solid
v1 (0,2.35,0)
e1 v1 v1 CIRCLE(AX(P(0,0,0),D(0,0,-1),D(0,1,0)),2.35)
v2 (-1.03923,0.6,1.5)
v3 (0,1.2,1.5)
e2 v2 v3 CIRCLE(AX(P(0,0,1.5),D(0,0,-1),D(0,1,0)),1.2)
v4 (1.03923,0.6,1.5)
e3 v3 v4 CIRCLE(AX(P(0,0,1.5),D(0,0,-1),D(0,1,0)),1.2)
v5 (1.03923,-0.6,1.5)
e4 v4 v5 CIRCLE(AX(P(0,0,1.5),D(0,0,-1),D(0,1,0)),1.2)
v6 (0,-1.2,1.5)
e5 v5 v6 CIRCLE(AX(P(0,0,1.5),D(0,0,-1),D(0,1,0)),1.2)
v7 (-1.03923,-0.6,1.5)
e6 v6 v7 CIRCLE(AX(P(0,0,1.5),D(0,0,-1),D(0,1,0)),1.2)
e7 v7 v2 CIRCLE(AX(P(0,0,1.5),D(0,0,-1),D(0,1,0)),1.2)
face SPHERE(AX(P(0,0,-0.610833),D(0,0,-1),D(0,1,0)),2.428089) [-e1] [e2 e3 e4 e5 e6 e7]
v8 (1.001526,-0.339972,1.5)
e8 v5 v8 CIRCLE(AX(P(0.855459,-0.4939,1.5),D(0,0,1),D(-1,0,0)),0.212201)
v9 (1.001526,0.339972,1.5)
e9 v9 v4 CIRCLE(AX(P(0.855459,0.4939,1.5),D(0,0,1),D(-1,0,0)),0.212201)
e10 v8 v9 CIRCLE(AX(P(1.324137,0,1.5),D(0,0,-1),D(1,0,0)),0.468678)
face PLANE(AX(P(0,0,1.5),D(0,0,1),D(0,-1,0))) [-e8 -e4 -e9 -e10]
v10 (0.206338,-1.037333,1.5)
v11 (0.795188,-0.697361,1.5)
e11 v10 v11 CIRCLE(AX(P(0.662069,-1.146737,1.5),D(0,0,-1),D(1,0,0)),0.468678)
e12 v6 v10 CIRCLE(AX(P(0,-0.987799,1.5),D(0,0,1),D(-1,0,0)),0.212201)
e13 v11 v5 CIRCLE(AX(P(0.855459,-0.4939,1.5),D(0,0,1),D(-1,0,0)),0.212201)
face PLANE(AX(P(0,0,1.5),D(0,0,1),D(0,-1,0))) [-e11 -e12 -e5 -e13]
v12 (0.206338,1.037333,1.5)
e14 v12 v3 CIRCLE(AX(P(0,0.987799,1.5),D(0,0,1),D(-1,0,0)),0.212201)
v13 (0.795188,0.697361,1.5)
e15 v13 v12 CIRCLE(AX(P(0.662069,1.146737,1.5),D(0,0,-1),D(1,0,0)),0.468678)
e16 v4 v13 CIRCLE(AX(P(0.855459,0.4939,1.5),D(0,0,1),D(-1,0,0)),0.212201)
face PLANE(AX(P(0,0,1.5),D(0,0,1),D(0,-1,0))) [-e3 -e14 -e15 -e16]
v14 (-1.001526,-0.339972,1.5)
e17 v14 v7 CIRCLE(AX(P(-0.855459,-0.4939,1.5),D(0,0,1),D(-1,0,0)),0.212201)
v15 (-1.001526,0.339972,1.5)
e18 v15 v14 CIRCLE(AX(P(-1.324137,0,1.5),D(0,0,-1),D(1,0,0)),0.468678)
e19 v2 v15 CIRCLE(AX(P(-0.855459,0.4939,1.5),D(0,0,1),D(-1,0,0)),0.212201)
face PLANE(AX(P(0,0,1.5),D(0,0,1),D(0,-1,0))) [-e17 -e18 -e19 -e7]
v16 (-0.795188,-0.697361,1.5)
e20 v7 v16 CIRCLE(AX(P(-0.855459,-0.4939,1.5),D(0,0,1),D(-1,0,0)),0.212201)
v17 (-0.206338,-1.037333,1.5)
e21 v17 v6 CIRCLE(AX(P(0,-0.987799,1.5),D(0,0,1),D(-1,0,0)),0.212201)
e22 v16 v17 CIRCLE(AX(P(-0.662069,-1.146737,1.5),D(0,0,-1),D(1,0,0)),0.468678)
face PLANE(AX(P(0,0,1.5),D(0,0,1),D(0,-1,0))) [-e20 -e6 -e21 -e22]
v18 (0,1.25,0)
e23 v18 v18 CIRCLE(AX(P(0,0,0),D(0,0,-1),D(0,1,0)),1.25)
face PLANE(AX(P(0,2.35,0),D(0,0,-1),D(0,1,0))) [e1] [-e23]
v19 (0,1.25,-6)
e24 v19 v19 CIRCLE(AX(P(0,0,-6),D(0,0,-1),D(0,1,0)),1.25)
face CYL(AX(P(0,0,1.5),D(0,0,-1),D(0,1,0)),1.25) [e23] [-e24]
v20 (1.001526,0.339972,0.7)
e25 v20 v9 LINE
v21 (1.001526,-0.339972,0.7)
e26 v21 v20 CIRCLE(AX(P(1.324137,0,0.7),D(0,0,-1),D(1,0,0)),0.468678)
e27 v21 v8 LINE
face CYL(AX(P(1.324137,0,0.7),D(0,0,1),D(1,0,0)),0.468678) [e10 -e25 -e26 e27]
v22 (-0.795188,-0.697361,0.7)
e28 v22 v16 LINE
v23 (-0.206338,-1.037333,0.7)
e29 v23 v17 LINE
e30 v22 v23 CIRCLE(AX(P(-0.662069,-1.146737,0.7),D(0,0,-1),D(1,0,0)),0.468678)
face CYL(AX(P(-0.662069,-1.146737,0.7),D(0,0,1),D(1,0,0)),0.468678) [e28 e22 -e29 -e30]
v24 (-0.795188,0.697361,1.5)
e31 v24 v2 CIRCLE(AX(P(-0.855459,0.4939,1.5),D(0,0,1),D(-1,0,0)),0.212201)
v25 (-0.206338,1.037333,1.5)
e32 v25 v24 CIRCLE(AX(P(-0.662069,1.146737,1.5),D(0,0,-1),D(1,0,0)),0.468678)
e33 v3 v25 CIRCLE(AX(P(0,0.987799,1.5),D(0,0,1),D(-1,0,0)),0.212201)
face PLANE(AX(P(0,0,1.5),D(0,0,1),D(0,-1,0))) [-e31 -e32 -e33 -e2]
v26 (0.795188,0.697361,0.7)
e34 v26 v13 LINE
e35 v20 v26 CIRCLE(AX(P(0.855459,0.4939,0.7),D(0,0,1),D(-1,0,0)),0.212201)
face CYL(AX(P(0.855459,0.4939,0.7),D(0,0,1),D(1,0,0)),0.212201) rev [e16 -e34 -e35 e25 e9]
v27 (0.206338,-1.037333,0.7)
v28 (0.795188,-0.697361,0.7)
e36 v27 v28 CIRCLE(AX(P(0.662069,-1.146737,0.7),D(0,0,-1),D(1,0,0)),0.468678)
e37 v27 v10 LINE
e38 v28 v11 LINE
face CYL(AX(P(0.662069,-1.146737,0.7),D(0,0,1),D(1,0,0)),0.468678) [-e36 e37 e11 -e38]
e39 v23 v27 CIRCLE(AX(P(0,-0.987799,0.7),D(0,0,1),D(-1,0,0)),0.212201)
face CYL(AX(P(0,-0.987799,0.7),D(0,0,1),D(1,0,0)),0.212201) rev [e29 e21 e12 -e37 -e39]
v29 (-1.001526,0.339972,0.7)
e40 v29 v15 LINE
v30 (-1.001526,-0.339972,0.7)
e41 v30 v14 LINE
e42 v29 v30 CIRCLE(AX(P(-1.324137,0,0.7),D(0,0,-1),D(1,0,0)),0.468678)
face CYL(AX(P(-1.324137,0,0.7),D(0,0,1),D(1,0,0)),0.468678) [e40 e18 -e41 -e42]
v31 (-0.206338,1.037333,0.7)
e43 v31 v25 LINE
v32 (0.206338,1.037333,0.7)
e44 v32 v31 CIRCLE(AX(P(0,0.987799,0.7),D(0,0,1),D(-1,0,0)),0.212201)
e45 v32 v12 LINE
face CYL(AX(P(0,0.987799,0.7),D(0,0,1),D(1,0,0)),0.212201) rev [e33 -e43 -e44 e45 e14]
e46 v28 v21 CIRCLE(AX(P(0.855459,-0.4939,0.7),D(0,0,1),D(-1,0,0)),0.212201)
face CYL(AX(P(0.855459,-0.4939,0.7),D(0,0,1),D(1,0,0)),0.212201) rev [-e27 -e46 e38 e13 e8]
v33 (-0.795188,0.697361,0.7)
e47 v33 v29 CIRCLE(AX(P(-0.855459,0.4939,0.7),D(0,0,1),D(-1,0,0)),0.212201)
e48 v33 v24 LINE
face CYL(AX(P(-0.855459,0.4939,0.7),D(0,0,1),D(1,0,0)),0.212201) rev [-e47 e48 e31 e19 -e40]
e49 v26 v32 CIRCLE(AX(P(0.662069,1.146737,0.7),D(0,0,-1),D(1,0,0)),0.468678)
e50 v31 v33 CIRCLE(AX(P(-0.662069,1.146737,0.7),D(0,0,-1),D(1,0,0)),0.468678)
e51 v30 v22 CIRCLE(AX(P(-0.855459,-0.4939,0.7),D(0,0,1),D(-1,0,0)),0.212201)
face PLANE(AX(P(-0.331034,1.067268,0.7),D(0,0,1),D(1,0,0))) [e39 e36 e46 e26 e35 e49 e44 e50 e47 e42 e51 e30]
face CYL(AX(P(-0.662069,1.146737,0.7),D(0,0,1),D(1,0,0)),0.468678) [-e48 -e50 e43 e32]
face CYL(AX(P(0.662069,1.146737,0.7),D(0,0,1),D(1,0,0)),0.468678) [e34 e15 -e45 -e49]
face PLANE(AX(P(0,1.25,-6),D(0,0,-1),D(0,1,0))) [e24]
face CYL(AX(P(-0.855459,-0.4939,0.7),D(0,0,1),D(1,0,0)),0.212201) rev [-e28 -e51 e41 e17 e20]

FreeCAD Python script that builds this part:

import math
import FreeCAD as App
import Part
import Sketcher
from FreeCAD import Vector

doc = App.newDocument("Part")
params = doc.addObject("Spreadsheet::Sheet", "Params")
for row, (alias, value) in enumerate([
    ("sketch1_height", "6 mm"),
    ("sketch1_width", "1.2 mm"),
    ("sketch1_width2", "1.1 mm"),
    ("sketch1_height2", "7.5 mm"),
    ("sketch1_width3", "1.25 mm"),
    ("revolution_angle", "360 deg"),
    ("pocket1_length", "0.8 mm"),
], start=1):
    params.set(f"A{row}", alias)
    params.set(f"B{row}", "=" + value)
    params.setAlias(f"B{row}", alias)

body = doc.addObject("PartDesign::Body", "Body")

sketch1 = body.newObject("Sketcher::SketchObject", "Sketch")
sketch1.AttachmentSupport = (doc.getObject("YZ_Plane"), [""])
sketch1.MapMode = "FlatFace"
sketch1.addGeometry(Part.LineSegment(Vector(1.2, 1.5, 0), Vector(0, 1.5, 0)), False)
sketch1.addGeometry(Part.LineSegment(Vector(0, 1.5, 0), Vector(0, -6, 0)), False)
sketch1.addGeometry(Part.LineSegment(Vector(0, -6, 0), Vector(1.25, -6, 0)), False)
sketch1.addGeometry(Part.LineSegment(Vector(1.25, -6, 0), Vector(1.25, 0, 0)), False)
sketch1.addGeometry(Part.LineSegment(Vector(1.25, 0, 0), Vector(2.35, 0, 0)), False)
sketch1.addGeometry(Part.ArcOfCircle(Part.Circle(Vector(0, -0.610833, 0), Vector(0, 0, 1), 2.428089), math.radians(14.57041), math.radians(60.381949)), False)
sketch1.addConstraint(Sketcher.Constraint("Coincident", 0, 2, 1, 1))
sketch1.addConstraint(Sketcher.Constraint("Coincident", 1, 2, 2, 1))
sketch1.addConstraint(Sketcher.Constraint("Coincident", 2, 2, 3, 1))
sketch1.addConstraint(Sketcher.Constraint("Coincident", 3, 2, 4, 1))
sketch1.addConstraint(Sketcher.Constraint("Coincident", 4, 2, 5, 1))
sketch1.addConstraint(Sketcher.Constraint("Coincident", 5, 2, 0, 1))
sketch1.addConstraint(Sketcher.Constraint("Horizontal", 0))
sketch1.addConstraint(Sketcher.Constraint("Vertical", 1))
sketch1.addConstraint(Sketcher.Constraint("Horizontal", 2))
sketch1.addConstraint(Sketcher.Constraint("Vertical", 3))
sketch1.addConstraint(Sketcher.Constraint("Horizontal", 4))
sketch1.addConstraint(Sketcher.Constraint("PointOnObject", 5, 3, -2))
sketch1.addConstraint(Sketcher.Constraint("PointOnObject", 0, 2, -2))
sketch1.addConstraint(Sketcher.Constraint("PointOnObject", 3, 2, -1))
sketch1.addConstraint(Sketcher.Constraint("DistanceY", 3, 1, 3, 2, 6.0))
sketch1.addConstraint(Sketcher.Constraint("DistanceX", 0, 2, 0, 1, 1.2))
sketch1.addConstraint(Sketcher.Constraint("DistanceX", 4, 1, 4, 2, 1.1))
sketch1.addConstraint(Sketcher.Constraint("DistanceY", 1, 2, 1, 1, 7.5))
sketch1.addConstraint(Sketcher.Constraint("DistanceX", 2, 1, 2, 2, 1.25))
sketch1.setExpression("Constraints[14]", "Params.sketch1_height")
sketch1.setExpression("Constraints[15]", "Params.sketch1_width")
sketch1.setExpression("Constraints[16]", "Params.sketch1_width2")
sketch1.setExpression("Constraints[17]", "Params.sketch1_height2")
sketch1.setExpression("Constraints[18]", "Params.sketch1_width3")
revolution = body.newObject("PartDesign::Revolution", "Revolution")
revolution.Profile = sketch1
revolution.ReferenceAxis = (sketch1, ["V_Axis"])
revolution.setExpression("Angle", "Params.revolution_angle")

sketch2 = body.newObject("Sketcher::SketchObject", "Sketch001")
sketch2.AttachmentSupport = (doc.getObject("XY_Plane"), [""])
sketch2.MapMode = "FlatFace"
sketch2.AttachmentOffset = App.Placement(Vector(0, 0, 1.5), App.Rotation())
sketch2.addGeometry(Part.ArcOfCircle(Part.Circle(Vector(0, 0.987799, 0), Vector(0, 0, 1), 0.212201), math.radians(13.499078), math.radians(166.500922)), False)
sketch2.addGeometry(Part.ArcOfCircle(Part.Circle(Vector(-0.662069, 1.146737, 0), Vector(0, 0, 1), 0.468678), math.radians(-106.500921), math.radians(-13.499079)), False)
sketch2.addGeometry(Part.ArcOfCircle(Part.Circle(Vector(-0.855459, 0.4939, 0), Vector(0, 0, 1), 0.212201), math.radians(73.499078), math.radians(226.500922)), False)
sketch2.addGeometry(Part.ArcOfCircle(Part.Circle(Vector(-1.324137, 0, 0), Vector(0, 0, 1), 0.468678), math.radians(-46.500922), math.radians(46.500922)), False)
sketch2.addGeometry(Part.ArcOfCircle(Part.Circle(Vector(-0.855459, -0.4939, 0), Vector(0, 0, 1), 0.212201), math.radians(133.499078), math.radians(286.500922)), False)
sketch2.addGeometry(Part.ArcOfCircle(Part.Circle(Vector(-0.662069, -1.146737, 0), Vector(0, 0, 1), 0.468678), math.radians(13.499079), math.radians(106.500921)), False)
sketch2.addGeometry(Part.ArcOfCircle(Part.Circle(Vector(0, -0.987799, 0), Vector(0, 0, 1), 0.212201), math.radians(-166.500922), math.radians(-13.499078)), False)
sketch2.addGeometry(Part.ArcOfCircle(Part.Circle(Vector(0.662069, -1.146737, 0), Vector(0, 0, 1), 0.468678), math.radians(73.499079), math.radians(166.500921)), False)
sketch2.addGeometry(Part.ArcOfCircle(Part.Circle(Vector(0.855459, -0.4939, 0), Vector(0, 0, 1), 0.212201), math.radians(-106.500922), math.radians(46.500922)), False)
sketch2.addGeometry(Part.ArcOfCircle(Part.Circle(Vector(1.324137, 0, 0), Vector(0, 0, 1), 0.468678), math.radians(133.499078), math.radians(226.500922)), False)
sketch2.addGeometry(Part.ArcOfCircle(Part.Circle(Vector(0.855459, 0.4939, 0), Vector(0, 0, 1), 0.212201), math.radians(-46.500922), math.radians(106.500922)), False)
sketch2.addGeometry(Part.ArcOfCircle(Part.Circle(Vector(0.662069, 1.146737, 0), Vector(0, 0, 1), 0.468678), math.radians(-166.500921), math.radians(-73.499079)), False)
sketch2.addConstraint(Sketcher.Constraint("Tangent", 0, 2, 1, 2))
sketch2.addConstraint(Sketcher.Constraint("Tangent", 1, 1, 2, 1))
sketch2.addConstraint(Sketcher.Constraint("Tangent", 2, 2, 3, 2))
sketch2.addConstraint(Sketcher.Constraint("Tangent", 3, 1, 4, 1))
sketch2.addConstraint(Sketcher.Constraint("Tangent", 4, 2, 5, 2))
sketch2.addConstraint(Sketcher.Constraint("Tangent", 5, 1, 6, 1))
sketch2.addConstraint(Sketcher.Constraint("Tangent", 6, 2, 7, 2))
sketch2.addConstraint(Sketcher.Constraint("Tangent", 7, 1, 8, 1))
sketch2.addConstraint(Sketcher.Constraint("Tangent", 8, 2, 9, 2))
sketch2.addConstraint(Sketcher.Constraint("Tangent", 9, 1, 10, 1))
sketch2.addConstraint(Sketcher.Constraint("Tangent", 10, 2, 11, 2))
sketch2.addConstraint(Sketcher.Constraint("Tangent", 11, 1, 0, 1))
sketch2.addConstraint(Sketcher.Constraint("Equal", 0, 2))
sketch2.addConstraint(Sketcher.Constraint("Equal", 1, 3))
sketch2.addConstraint(Sketcher.Constraint("Equal", 2, 4))
sketch2.addConstraint(Sketcher.Constraint("Equal", 3, 5))
sketch2.addConstraint(Sketcher.Constraint("Equal", 4, 6))
sketch2.addConstraint(Sketcher.Constraint("Equal", 5, 7))
sketch2.addConstraint(Sketcher.Constraint("Equal", 6, 8))
sketch2.addConstraint(Sketcher.Constraint("Equal", 7, 9))
sketch2.addConstraint(Sketcher.Constraint("Equal", 8, 10))
sketch2.addConstraint(Sketcher.Constraint("Equal", 9, 11))
sketch2.addConstraint(Sketcher.Constraint("Symmetric", 0, 3, 6, 3, -1, 1))
sketch2.addConstraint(Sketcher.Constraint("Symmetric", 2, 3, 8, 3, -1, 1))
sketch2.addConstraint(Sketcher.Constraint("Symmetric", 4, 3, 10, 3, -1, 1))
sketch2.addConstraint(Sketcher.Constraint("Symmetric", 5, 3, 7, 3, -2))
sketch2.addConstraint(Sketcher.Constraint("PointOnObject", 3, 3, -1))
sketch2.addConstraint(Sketcher.Constraint("Radius", 0, 0.212201))
sketch2.addConstraint(Sketcher.Constraint("Radius", 1, 0.468678))
sketch2.addConstraint(Sketcher.Constraint("DistanceY", -1, 1, 0, 3, 0.987799))
sketch2.addConstraint(Sketcher.Constraint("DistanceY", -1, 1, 2, 3, 0.4939))
sketch2.addConstraint(Sketcher.Constraint("DistanceX", 1, 3, -1, 1, 0.662069))
pocket1 = body.newObject("PartDesign::Pocket", "Pocket")
pocket1.Profile = sketch2
pocket1.setExpression("Length", "Params.pocket1_length")

doc.recompute()
